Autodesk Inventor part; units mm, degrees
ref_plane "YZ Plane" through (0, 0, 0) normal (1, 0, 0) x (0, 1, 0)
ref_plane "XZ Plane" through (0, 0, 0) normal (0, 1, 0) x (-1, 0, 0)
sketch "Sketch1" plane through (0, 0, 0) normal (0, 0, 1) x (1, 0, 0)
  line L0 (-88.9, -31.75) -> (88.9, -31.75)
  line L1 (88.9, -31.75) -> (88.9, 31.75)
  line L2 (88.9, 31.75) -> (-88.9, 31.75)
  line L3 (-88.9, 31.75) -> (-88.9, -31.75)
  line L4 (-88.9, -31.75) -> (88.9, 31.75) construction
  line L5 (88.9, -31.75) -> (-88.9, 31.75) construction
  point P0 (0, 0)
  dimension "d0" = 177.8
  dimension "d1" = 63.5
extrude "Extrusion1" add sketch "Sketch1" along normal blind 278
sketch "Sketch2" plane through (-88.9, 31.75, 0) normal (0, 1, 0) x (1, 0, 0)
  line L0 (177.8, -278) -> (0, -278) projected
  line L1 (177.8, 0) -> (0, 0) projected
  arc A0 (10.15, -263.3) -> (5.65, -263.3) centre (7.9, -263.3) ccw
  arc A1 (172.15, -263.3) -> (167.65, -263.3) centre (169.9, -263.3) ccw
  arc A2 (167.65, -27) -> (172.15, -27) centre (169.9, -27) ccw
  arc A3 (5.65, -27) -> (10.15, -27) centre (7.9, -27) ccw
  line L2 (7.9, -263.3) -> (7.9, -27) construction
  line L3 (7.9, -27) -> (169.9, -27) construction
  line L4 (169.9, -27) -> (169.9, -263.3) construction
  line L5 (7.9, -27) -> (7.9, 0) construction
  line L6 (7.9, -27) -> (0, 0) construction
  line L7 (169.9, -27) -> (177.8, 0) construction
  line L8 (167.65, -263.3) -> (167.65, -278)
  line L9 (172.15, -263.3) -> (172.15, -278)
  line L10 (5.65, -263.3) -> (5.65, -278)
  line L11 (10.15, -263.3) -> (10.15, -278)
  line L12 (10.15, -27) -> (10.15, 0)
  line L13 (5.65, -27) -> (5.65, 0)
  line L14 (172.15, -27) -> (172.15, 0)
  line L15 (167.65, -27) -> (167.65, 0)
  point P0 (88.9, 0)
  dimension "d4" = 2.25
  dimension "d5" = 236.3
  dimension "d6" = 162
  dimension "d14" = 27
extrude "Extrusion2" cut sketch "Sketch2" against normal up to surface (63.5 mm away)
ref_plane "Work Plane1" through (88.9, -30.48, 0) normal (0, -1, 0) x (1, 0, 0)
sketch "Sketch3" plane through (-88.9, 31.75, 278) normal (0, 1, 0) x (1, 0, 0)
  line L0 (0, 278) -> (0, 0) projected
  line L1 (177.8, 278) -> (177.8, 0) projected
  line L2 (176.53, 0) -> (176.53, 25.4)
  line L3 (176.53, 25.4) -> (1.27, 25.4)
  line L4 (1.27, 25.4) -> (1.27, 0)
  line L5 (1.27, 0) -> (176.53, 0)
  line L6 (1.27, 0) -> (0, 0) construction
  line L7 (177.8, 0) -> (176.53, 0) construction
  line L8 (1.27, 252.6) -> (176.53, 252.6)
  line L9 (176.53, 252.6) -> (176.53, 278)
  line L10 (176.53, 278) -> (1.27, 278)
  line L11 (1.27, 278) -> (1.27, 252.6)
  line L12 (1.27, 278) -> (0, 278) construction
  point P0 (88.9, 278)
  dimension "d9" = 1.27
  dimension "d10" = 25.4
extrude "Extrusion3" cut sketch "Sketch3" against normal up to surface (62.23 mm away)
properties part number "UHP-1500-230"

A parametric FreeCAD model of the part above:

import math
import FreeCAD as App
import Part
import Sketcher
Q = App.Units.Quantity

doc = App.newDocument("Part")
params = doc.addObject("Spreadsheet::Sheet", "Params")
for row, (alias, value) in enumerate([
    ("sketch1_width", "7 in"),
    ("sketch1_height", "2.5 in"),
    ("pad1_length", "278 mm"),
    ("sketch2_height", "1.063 in"),
    ("pocket1_length", "2.5 in"),
    ("sketch3_height", "1 in"),
    ("sketch3_width", "6.9 in"),
    ("pocket2_length", "2.45 in"),
], start=1):
    params.set(f"A{row}", alias)
    params.set(f"B{row}", "=" + value)
    params.setAlias(f"B{row}", alias)

body = doc.addObject("PartDesign::Body", "Body")

# Sketch on XY plane
sketch1 = body.newObject("Sketcher::SketchObject", "Sketch")
sketch1.AttachmentSupport = (doc.getObject("XY_Plane"), [""])
sketch1.MapMode = "FlatFace"
sketch1.addGeometry([
    Part.LineSegment(App.Vector(-89, 32, 0), App.Vector(-89, -32, 0)),
    Part.LineSegment(App.Vector(-89, -32, 0), App.Vector(89, -32, 0)),
    Part.LineSegment(App.Vector(89, -32, 0), App.Vector(89, 32, 0)),
    Part.LineSegment(App.Vector(89, 32, 0), App.Vector(-89, 32, 0)),
], False)
sketch1.addConstraint([
    Sketcher.Constraint("Coincident", 0, 2, 1, 1),
    Sketcher.Constraint("Coincident", 1, 2, 2, 1),
    Sketcher.Constraint("Coincident", 2, 2, 3, 1),
    Sketcher.Constraint("Coincident", 3, 2, 0, 1),
    Sketcher.Constraint("Vertical", 0),
    Sketcher.Constraint("Horizontal", 1),
    Sketcher.Constraint("Vertical", 2),
    Sketcher.Constraint("Horizontal", 3),
    Sketcher.Constraint("Symmetric", 0, 2, 2, 2, -1, 1),
    Sketcher.Constraint("DistanceX", 1, 1, 1, 2, Q("7 in")),
    Sketcher.Constraint("DistanceY", 0, 2, 0, 1, Q("2.5 in")),
])
sketch1.setExpression("Constraints[9]", "Params.sketch1_width")
sketch1.setExpression("Constraints[10]", "Params.sketch1_height")
pad1 = body.newObject("PartDesign::Pad", "Pad")
pad1.Profile = sketch1
pad1.setExpression("Length", "Params.pad1_length")

# Sketch on XZ plane
sketch2 = body.newObject("Sketcher::SketchObject", "Sketch001")
sketch2.AttachmentSupport = (doc.getObject("XZ_Plane"), [""])
sketch2.MapMode = "FlatFace"
sketch2.AttachmentOffset = App.Placement(App.Vector(0, 0, -1.25 * 25.4), App.Rotation())
sketch2.addGeometry([
    Part.LineSegment(App.Vector(-83.2, 278, 0), App.Vector(-78.8, 278, 0)),  # 0
    Part.LineSegment(App.Vector(-78.8, 278, 0), App.Vector(-78.8, 263.3, 0)),  # 1
    Part.ArcOfCircle(Part.Circle(App.Vector(-81, 263.3, 0), App.Vector(0, 0, 1), 2.2), math.radians(180), math.radians(360)),  # 2
    Part.LineSegment(App.Vector(-83.2, 263.3, 0), App.Vector(-83.2, 278, 0)),  # 3
    Part.LineSegment(App.Vector(78.8, 278, 0), App.Vector(83.2, 278, 0)),  # 4
    Part.LineSegment(App.Vector(83.2, 278, 0), App.Vector(83.2, 263.3, 0)),  # 5
    Part.ArcOfCircle(Part.Circle(App.Vector(81, 263.3, 0), App.Vector(0, 0, 1), 2.2), math.radians(180), math.radians(360)),  # 6
    Part.LineSegment(App.Vector(78.8, 263.3, 0), App.Vector(78.8, 278, 0)),  # 7
    Part.LineSegment(App.Vector(83.2, 27, 0), App.Vector(83.2, 0, 0)),  # 8
    Part.LineSegment(App.Vector(83.2, 0, 0), App.Vector(78.8, 0, 0)),  # 9
    Part.LineSegment(App.Vector(78.8, 0, 0), App.Vector(78.8, 27, 0)),  # 10
    Part.ArcOfCircle(Part.Circle(App.Vector(81, 27, 0), App.Vector(0, 0, 1), 2.2), math.radians(0), math.radians(180)),  # 11
    Part.LineSegment(App.Vector(-78.8, 27, 0), App.Vector(-78.8, 0, 0)),  # 12
    Part.LineSegment(App.Vector(-78.8, 0, 0), App.Vector(-83.2, 0, 0)),  # 13
    Part.LineSegment(App.Vector(-83.2, 0, 0), App.Vector(-83.2, 27, 0)),  # 14
    Part.ArcOfCircle(Part.Circle(App.Vector(-81, 27, 0), App.Vector(0, 0, 1), 2.2), math.radians(0), math.radians(180)),  # 15
], False)
sketch2.addConstraint([
    Sketcher.Constraint("Coincident", 0, 2, 1, 1),
    Sketcher.Constraint("Tangent", 1, 2, 2, 2),
    Sketcher.Constraint("Tangent", 2, 1, 3, 1),
    Sketcher.Constraint("Coincident", 3, 2, 0, 1),
    Sketcher.Constraint("Coincident", 4, 2, 5, 1),
    Sketcher.Constraint("Tangent", 5, 2, 6, 2),
    Sketcher.Constraint("Tangent", 6, 1, 7, 1),
    Sketcher.Constraint("Coincident", 7, 2, 4, 1),
    Sketcher.Constraint("Coincident", 8, 2, 9, 1),
    Sketcher.Constraint("Coincident", 9, 2, 10, 1),
    Sketcher.Constraint("Tangent", 10, 2, 11, 2),
    Sketcher.Constraint("Tangent", 11, 1, 8, 1),
    Sketcher.Constraint("Coincident", 12, 2, 13, 1),
    Sketcher.Constraint("Coincident", 13, 2, 14, 1),
    Sketcher.Constraint("Tangent", 14, 2, 15, 2),
    Sketcher.Constraint("Tangent", 15, 1, 12, 1),
    Sketcher.Constraint("Horizontal", 0),
    Sketcher.Constraint("Vertical", 1),
    Sketcher.Constraint("Vertical", 3),
    Sketcher.Constraint("Horizontal", 4),
    Sketcher.Constraint("Vertical", 5),
    Sketcher.Constraint("Vertical", 7),
    Sketcher.Constraint("Vertical", 8),
    Sketcher.Constraint("Horizontal", 9),
    Sketcher.Constraint("Vertical", 10),
    Sketcher.Constraint("Vertical", 12),
    Sketcher.Constraint("Horizontal", 13),
    Sketcher.Constraint("Vertical", 14),
    Sketcher.Constraint("Equal", 2, 6),
    Sketcher.Constraint("Equal", 6, 11),
    Sketcher.Constraint("Equal", 11, 15),
    Sketcher.Constraint("Symmetric", 9, 2, 12, 2, -1, 1),
    Sketcher.Constraint("Symmetric", 2, 3, 6, 3, -2),
    Sketcher.Constraint("PointOnObject", 8, 2, -1),
    Sketcher.Constraint("Horizontal", 11, 3, 15, 3),
    Sketcher.Constraint("Horizontal", 3, 2, 4, 2),
    Sketcher.Constraint("Vertical", 6, 3, 11, 3),
    Sketcher.Constraint("DistanceY", 8, 2, 8, 1, Q("1.063 in")),
    Sketcher.Constraint("Radius", 2, Q("2.25 mm")),
    Sketcher.Constraint("DistanceX", 2, 3, 6, 3, Q("162 mm")),
    Sketcher.Constraint("DistanceY", 11, 3, 6, 3, Q("236.3 mm")),
    Sketcher.Constraint("DistanceY", 1, 2, 1, 1, Q("14.7 mm")),
])
sketch2.setExpression("Constraints[37]", "Params.sketch2_height")
pocket1 = body.newObject("PartDesign::Pocket", "Pocket")
pocket1.Profile = sketch2
pocket1.setExpression("Length", "Params.pocket1_length")
pocket1.Reversed = True

# Sketch on XZ plane
sketch3 = body.newObject("Sketcher::SketchObject", "Sketch002")
sketch3.AttachmentSupport = (doc.getObject("XZ_Plane"), [""])
sketch3.MapMode = "FlatFace"
sketch3.AttachmentOffset = App.Placement(App.Vector(0, 0, -1.25 * 25.4), App.Rotation())
sketch3.addGeometry([
    Part.LineSegment(App.Vector(-88, 278, 0), App.Vector(88, 278, 0)),  # 0
    Part.LineSegment(App.Vector(88, 278, 0), App.Vector(88, 253, 0)),  # 1
    Part.LineSegment(App.Vector(88, 253, 0), App.Vector(-88, 253, 0)),  # 2
    Part.LineSegment(App.Vector(-88, 253, 0), App.Vector(-88, 278, 0)),  # 3
    Part.LineSegment(App.Vector(-88, 0, 0), App.Vector(-88, 25, 0)),  # 4
    Part.LineSegment(App.Vector(-88, 25, 0), App.Vector(88, 25, 0)),  # 5
    Part.LineSegment(App.Vector(88, 25, 0), App.Vector(88, 0, 0)),  # 6
    Part.LineSegment(App.Vector(88, 0, 0), App.Vector(-88, 0, 0)),  # 7
], False)
sketch3.addConstraint([
    Sketcher.Constraint("Coincident", 0, 2, 1, 1),
    Sketcher.Constraint("Coincident", 1, 2, 2, 1),
    Sketcher.Constraint("Coincident", 2, 2, 3, 1),
    Sketcher.Constraint("Coincident", 3, 2, 0, 1),
    Sketcher.Constraint("Coincident", 4, 2, 5, 1),
    Sketcher.Constraint("Coincident", 5, 2, 6, 1),
    Sketcher.Constraint("Coincident", 6, 2, 7, 1),
    Sketcher.Constraint("Coincident", 7, 2, 4, 1),
    Sketcher.Constraint("Horizontal", 0),
    Sketcher.Constraint("Vertical", 1),
    Sketcher.Constraint("Horizontal", 2),
    Sketcher.Constraint("Vertical", 3),
    Sketcher.Constraint("Vertical", 4),
    Sketcher.Constraint("Horizontal", 5),
    Sketcher.Constraint("Vertical", 6),
    Sketcher.Constraint("Horizontal", 7),
    Sketcher.Constraint("Symmetric", 6, 2, 7, 2, -1, 1),
    Sketcher.Constraint("Vertical", 3, 2, 4, 2),
    Sketcher.Constraint("Vertical", 1, 2, 5, 2),
    Sketcher.Constraint("Equal", 3, 4),
    Sketcher.Constraint("DistanceY", 1, 2, 1, 1, Q("1 in")),
    Sketcher.Constraint("DistanceX", 0, 1, 0, 2, Q("6.9 in")),
    Sketcher.Constraint("DistanceY", -1, 1, 0, 2, Q("278 mm")),
])
sketch3.setExpression("Constraints[20]", "Params.sketch3_height")
sketch3.setExpression("Constraints[21]", "Params.sketch3_width")
pocket2 = body.newObject("PartDesign::Pocket", "Pocket001")
pocket2.Profile = sketch3
pocket2.setExpression("Length", "Params.pocket2_length")
pocket2.Reversed = True

doc.recompute()
